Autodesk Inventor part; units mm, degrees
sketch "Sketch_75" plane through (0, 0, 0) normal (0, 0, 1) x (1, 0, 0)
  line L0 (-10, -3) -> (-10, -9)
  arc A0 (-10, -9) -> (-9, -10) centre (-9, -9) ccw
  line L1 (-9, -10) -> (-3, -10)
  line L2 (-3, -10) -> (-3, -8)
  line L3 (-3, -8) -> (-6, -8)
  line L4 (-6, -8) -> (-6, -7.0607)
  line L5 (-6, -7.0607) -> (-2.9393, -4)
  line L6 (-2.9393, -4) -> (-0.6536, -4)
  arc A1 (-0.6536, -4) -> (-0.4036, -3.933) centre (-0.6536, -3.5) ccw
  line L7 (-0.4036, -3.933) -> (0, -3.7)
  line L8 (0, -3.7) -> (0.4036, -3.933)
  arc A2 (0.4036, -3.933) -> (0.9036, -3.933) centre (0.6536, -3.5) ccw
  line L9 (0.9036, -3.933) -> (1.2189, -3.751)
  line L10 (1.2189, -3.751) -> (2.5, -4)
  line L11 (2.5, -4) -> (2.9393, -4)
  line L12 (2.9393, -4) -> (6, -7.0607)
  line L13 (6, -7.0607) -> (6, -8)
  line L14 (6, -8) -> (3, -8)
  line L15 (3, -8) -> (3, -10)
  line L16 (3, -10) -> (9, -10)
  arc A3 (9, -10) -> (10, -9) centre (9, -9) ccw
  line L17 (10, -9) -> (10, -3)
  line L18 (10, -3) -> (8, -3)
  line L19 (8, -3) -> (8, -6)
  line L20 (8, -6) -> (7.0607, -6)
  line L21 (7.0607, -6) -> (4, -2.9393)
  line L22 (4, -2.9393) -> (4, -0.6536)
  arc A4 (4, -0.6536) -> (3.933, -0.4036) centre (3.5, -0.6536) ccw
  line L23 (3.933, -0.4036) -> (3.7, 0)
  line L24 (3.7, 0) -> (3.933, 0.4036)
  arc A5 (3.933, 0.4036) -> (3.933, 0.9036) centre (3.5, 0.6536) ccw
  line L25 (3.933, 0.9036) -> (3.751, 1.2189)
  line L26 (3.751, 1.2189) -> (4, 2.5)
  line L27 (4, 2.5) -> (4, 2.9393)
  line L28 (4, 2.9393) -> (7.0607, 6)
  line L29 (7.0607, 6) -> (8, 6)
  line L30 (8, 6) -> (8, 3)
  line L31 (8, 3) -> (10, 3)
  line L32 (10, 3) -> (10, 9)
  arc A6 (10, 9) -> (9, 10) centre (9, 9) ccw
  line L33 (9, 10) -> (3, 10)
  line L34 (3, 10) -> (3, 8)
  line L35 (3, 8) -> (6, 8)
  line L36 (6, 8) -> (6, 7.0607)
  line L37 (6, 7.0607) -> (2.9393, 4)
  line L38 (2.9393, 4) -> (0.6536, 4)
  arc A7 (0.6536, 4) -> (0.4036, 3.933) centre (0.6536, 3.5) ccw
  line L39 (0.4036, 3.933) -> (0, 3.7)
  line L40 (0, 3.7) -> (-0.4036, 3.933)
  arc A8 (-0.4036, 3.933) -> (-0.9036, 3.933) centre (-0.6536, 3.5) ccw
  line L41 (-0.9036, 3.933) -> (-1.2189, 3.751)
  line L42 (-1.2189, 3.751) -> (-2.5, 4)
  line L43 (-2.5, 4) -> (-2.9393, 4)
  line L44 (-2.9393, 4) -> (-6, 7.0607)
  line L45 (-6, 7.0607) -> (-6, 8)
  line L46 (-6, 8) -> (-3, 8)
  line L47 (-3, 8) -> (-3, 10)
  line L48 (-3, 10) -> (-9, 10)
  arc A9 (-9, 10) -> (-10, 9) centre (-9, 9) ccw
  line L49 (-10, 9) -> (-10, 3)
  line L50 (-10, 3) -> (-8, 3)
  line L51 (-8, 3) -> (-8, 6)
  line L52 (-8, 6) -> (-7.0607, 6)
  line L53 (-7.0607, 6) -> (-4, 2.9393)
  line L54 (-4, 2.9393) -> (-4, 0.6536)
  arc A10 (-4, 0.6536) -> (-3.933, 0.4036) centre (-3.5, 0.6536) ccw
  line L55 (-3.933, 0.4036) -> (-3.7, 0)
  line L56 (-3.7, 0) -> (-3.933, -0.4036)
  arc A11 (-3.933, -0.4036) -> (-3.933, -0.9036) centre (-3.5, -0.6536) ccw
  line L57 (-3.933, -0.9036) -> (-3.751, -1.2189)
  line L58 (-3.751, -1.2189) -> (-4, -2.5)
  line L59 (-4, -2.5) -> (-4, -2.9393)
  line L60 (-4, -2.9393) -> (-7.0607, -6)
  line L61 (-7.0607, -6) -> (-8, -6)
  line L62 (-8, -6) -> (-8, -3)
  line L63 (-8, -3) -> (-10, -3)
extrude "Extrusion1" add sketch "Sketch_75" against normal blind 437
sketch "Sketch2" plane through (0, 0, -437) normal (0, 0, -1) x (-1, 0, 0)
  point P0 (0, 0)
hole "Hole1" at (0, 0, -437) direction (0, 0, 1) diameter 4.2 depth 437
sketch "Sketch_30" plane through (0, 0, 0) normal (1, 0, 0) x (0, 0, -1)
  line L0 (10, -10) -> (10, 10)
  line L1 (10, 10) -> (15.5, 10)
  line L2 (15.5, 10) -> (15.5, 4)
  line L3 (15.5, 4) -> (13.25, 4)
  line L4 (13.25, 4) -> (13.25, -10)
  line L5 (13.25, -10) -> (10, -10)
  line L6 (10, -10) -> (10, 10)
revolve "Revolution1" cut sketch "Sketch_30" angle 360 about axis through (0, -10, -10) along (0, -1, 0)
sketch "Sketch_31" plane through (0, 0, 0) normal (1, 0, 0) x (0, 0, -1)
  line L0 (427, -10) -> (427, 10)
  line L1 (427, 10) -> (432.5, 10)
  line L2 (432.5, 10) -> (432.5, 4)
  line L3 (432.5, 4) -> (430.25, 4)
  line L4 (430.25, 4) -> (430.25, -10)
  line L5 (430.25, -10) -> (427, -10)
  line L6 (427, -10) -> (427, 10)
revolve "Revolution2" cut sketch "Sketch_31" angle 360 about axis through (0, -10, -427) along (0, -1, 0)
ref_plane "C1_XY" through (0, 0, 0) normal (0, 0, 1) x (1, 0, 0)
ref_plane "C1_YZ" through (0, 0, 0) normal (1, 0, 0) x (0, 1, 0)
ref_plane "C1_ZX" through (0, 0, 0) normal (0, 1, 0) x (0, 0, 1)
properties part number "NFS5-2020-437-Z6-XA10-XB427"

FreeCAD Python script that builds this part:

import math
import FreeCAD as App
import Part
import Sketcher
Q = App.Units.Quantity


def add_polygon(sketch, points):
    """Adds a closed chain of lines whose ends are joined by coincident constraints."""
    first, n = sketch.GeometryCount, len(points)
    for a, b in zip(points, points[1:] + points[:1]):
        sketch.addGeometry(Part.LineSegment(App.Vector(*a, 0), App.Vector(*b, 0)), False)
    for i in range(n):
        sketch.addConstraint(Sketcher.Constraint("Coincident", first + i, 2, first + (i + 1) % n, 1))

doc = App.newDocument("Part")
params = doc.addObject("Spreadsheet::Sheet", "Params")
for row, (alias, value) in enumerate([
    ("sketch1_radius", "1 mm"),
    ("sketch1_radius2", "0.5 mm"),
    ("sketch1_width", "2 mm"),
    ("sketch1_width2", "6 mm"),
    ("sketch1_width3", "3 mm"),
    ("pad1_length", "437 mm"),
    ("sketch2_diameter", "4.2 mm"),
    ("hole_diameter", "4.2 mm"),
    ("hole_depth", "437 mm"),
    ("sketch3_width", "20 mm"),
    ("sketch3_width2", "14 mm"),
    ("sketch3_height", "5.5 mm"),
    ("sketch3_height2", "3.25 mm"),
    ("groove_angle", "360 deg"),
    ("sketch4_width", "20 mm"),
    ("sketch4_width2", "14 mm"),
    ("sketch4_height", "5.5 mm"),
    ("sketch4_height2", "3.25 mm"),
    ("groove2_angle", "360 deg"),
], start=1):
    params.set(f"A{row}", alias)
    params.set(f"B{row}", "=" + value)
    params.setAlias(f"B{row}", alias)

body = doc.addObject("PartDesign::Body", "Body")

# Sketch on XY plane
sketch1 = doc.addObject("Sketcher::SketchObject", "Sketch")
body.addObject(sketch1)
sketch1.AttachmentSupport = (doc.XY_Plane, [""])
sketch1.MapMode = "FlatFace"
sketch1.addGeometry([
    Part.LineSegment(App.Vector(-8, -3, 0), App.Vector(-10, -3, 0)),  # 0
    Part.LineSegment(App.Vector(-10, -3, 0), App.Vector(-10, -9, 0)),  # 1
    Part.ArcOfCircle(Part.Circle(App.Vector(-9, -9, 0), App.Vector(0, 0, 1), 1), math.radians(180), math.radians(270)),  # 2
    Part.LineSegment(App.Vector(-9, -10, 0), App.Vector(-3, -10, 0)),  # 3
    Part.LineSegment(App.Vector(-3, -10, 0), App.Vector(-3, -8, 0)),  # 4
    Part.LineSegment(App.Vector(-3, -8, 0), App.Vector(-6, -8, 0)),  # 5
    Part.LineSegment(App.Vector(-6, -8, 0), App.Vector(-6, -7.06, 0)),  # 6
    Part.LineSegment(App.Vector(-6, -7.06, 0), App.Vector(-2.94, -4, 0)),  # 7
    Part.LineSegment(App.Vector(-2.94, -4, 0), App.Vector(-0.65, -4, 0)),  # 8
    Part.ArcOfCircle(Part.Circle(App.Vector(-0.65, -3.5, 0), App.Vector(0, 0, 1), 0.5), math.radians(-90), math.radians(-60)),  # 9
    Part.LineSegment(App.Vector(-0.4, -3.93, 0), App.Vector(0, -3.7, 0)),  # 10
    Part.LineSegment(App.Vector(0, -3.7, 0), App.Vector(0.4, -3.93, 0)),  # 11
    Part.ArcOfCircle(Part.Circle(App.Vector(0.65, -3.5, 0), App.Vector(0, 0, 1), 0.5), math.radians(-120), math.radians(-60)),  # 12
    Part.LineSegment(App.Vector(0.9, -3.93, 0), App.Vector(1.22, -3.75, 0)),  # 13
    Part.LineSegment(App.Vector(1.22, -3.75, 0), App.Vector(2.5, -4, 0)),  # 14
    Part.LineSegment(App.Vector(2.5, -4, 0), App.Vector(2.94, -4, 0)),  # 15
    Part.LineSegment(App.Vector(2.94, -4, 0), App.Vector(6, -7.06, 0)),  # 16
    Part.LineSegment(App.Vector(6, -7.06, 0), App.Vector(6, -8, 0)),  # 17
    Part.LineSegment(App.Vector(6, -8, 0), App.Vector(3, -8, 0)),  # 18
    Part.LineSegment(App.Vector(3, -8, 0), App.Vector(3, -10, 0)),  # 19
    Part.LineSegment(App.Vector(3, -10, 0), App.Vector(9, -10, 0)),  # 20
    Part.ArcOfCircle(Part.Circle(App.Vector(9, -9, 0), App.Vector(0, 0, 1), 1), math.radians(-90), math.radians(0)),  # 21
    Part.LineSegment(App.Vector(10, -9, 0), App.Vector(10, -3, 0)),  # 22
    Part.LineSegment(App.Vector(10, -3, 0), App.Vector(8, -3, 0)),  # 23
    Part.LineSegment(App.Vector(8, -3, 0), App.Vector(8, -6, 0)),  # 24
    Part.LineSegment(App.Vector(8, -6, 0), App.Vector(7.06, -6, 0)),  # 25
    Part.LineSegment(App.Vector(7.06, -6, 0), App.Vector(4, -2.94, 0)),  # 26
    Part.LineSegment(App.Vector(4, -2.94, 0), App.Vector(4, -0.65, 0)),  # 27
    Part.ArcOfCircle(Part.Circle(App.Vector(3.5, -0.65, 0), App.Vector(0, 0, 1), 0.5), math.radians(0), math.radians(30)),  # 28
    Part.LineSegment(App.Vector(3.93, -0.4, 0), App.Vector(3.7, 0, 0)),  # 29
    Part.LineSegment(App.Vector(3.7, 0, 0), App.Vector(3.93, 0.4, 0)),  # 30
    Part.ArcOfCircle(Part.Circle(App.Vector(3.5, 0.65, 0), App.Vector(0, 0, 1), 0.5), math.radians(-30), math.radians(30)),  # 31
    Part.LineSegment(App.Vector(3.93, 0.9, 0), App.Vector(3.75, 1.22, 0)),  # 32
    Part.LineSegment(App.Vector(3.75, 1.22, 0), App.Vector(4, 2.5, 0)),  # 33
    Part.LineSegment(App.Vector(4, 2.5, 0), App.Vector(4, 2.94, 0)),  # 34
    Part.LineSegment(App.Vector(4, 2.94, 0), App.Vector(7.06, 6, 0)),  # 35
    Part.LineSegment(App.Vector(7.06, 6, 0), App.Vector(8, 6, 0)),  # 36
    Part.LineSegment(App.Vector(8, 6, 0), App.Vector(8, 3, 0)),  # 37
    Part.LineSegment(App.Vector(8, 3, 0), App.Vector(10, 3, 0)),  # 38
    Part.LineSegment(App.Vector(10, 3, 0), App.Vector(10, 9, 0)),  # 39
    Part.ArcOfCircle(Part.Circle(App.Vector(9, 9, 0), App.Vector(0, 0, 1), 1), math.radians(0), math.radians(90)),  # 40
    Part.LineSegment(App.Vector(9, 10, 0), App.Vector(3, 10, 0)),  # 41
    Part.LineSegment(App.Vector(3, 10, 0), App.Vector(3, 8, 0)),  # 42
    Part.LineSegment(App.Vector(3, 8, 0), App.Vector(6, 8, 0)),  # 43
    Part.LineSegment(App.Vector(6, 8, 0), App.Vector(6, 7.06, 0)),  # 44
    Part.LineSegment(App.Vector(6, 7.06, 0), App.Vector(2.94, 4, 0)),  # 45
    Part.LineSegment(App.Vector(2.94, 4, 0), App.Vector(0.65, 4, 0)),  # 46
    Part.ArcOfCircle(Part.Circle(App.Vector(0.65, 3.5, 0), App.Vector(0, 0, 1), 0.5), math.radians(90), math.radians(120)),  # 47
    Part.LineSegment(App.Vector(0.4, 3.93, 0), App.Vector(0, 3.7, 0)),  # 48
    Part.LineSegment(App.Vector(0, 3.7, 0), App.Vector(-0.4, 3.93, 0)),  # 49
    Part.ArcOfCircle(Part.Circle(App.Vector(-0.65, 3.5, 0), App.Vector(0, 0, 1), 0.5), math.radians(60), math.radians(120)),  # 50
    Part.LineSegment(App.Vector(-0.9, 3.93, 0), App.Vector(-1.22, 3.75, 0)),  # 51
    Part.LineSegment(App.Vector(-1.22, 3.75, 0), App.Vector(-2.5, 4, 0)),  # 52
    Part.LineSegment(App.Vector(-2.5, 4, 0), App.Vector(-2.94, 4, 0)),  # 53
    Part.LineSegment(App.Vector(-2.94, 4, 0), App.Vector(-6, 7.06, 0)),  # 54
    Part.LineSegment(App.Vector(-6, 7.06, 0), App.Vector(-6, 8, 0)),  # 55
    Part.LineSegment(App.Vector(-6, 8, 0), App.Vector(-3, 8, 0)),  # 56
    Part.LineSegment(App.Vector(-3, 8, 0), App.Vector(-3, 10, 0)),  # 57
    Part.LineSegment(App.Vector(-3, 10, 0), App.Vector(-9, 10, 0)),  # 58
    Part.ArcOfCircle(Part.Circle(App.Vector(-9, 9, 0), App.Vector(0, 0, 1), 1), math.radians(90), math.radians(180)),  # 59
    Part.LineSegment(App.Vector(-10, 9, 0), App.Vector(-10, 3, 0)),  # 60
    Part.LineSegment(App.Vector(-10, 3, 0), App.Vector(-8, 3, 0)),  # 61
    Part.LineSegment(App.Vector(-8, 3, 0), App.Vector(-8, 6, 0)),  # 62
    Part.LineSegment(App.Vector(-8, 6, 0), App.Vector(-7.06, 6, 0)),  # 63
    Part.LineSegment(App.Vector(-7.06, 6, 0), App.Vector(-4, 2.94, 0)),  # 64
    Part.LineSegment(App.Vector(-4, 2.94, 0), App.Vector(-4, 0.65, 0)),  # 65
    Part.ArcOfCircle(Part.Circle(App.Vector(-3.5, 0.65, 0), App.Vector(0, 0, 1), 0.5), math.radians(180), math.radians(210)),  # 66
    Part.LineSegment(App.Vector(-3.93, 0.4, 0), App.Vector(-3.7, 0, 0)),  # 67
    Part.LineSegment(App.Vector(-3.7, 0, 0), App.Vector(-3.93, -0.4, 0)),  # 68
    Part.ArcOfCircle(Part.Circle(App.Vector(-3.5, -0.65, 0), App.Vector(0, 0, 1), 0.5), math.radians(150), math.radians(210)),  # 69
    Part.LineSegment(App.Vector(-3.93, -0.9, 0), App.Vector(-3.75, -1.22, 0)),  # 70
    Part.LineSegment(App.Vector(-3.75, -1.22, 0), App.Vector(-4, -2.5, 0)),  # 71
    Part.LineSegment(App.Vector(-4, -2.5, 0), App.Vector(-4, -2.94, 0)),  # 72
    Part.LineSegment(App.Vector(-4, -2.94, 0), App.Vector(-7.06, -6, 0)),  # 73
    Part.LineSegment(App.Vector(-7.06, -6, 0), App.Vector(-8, -6, 0)),  # 74
    Part.LineSegment(App.Vector(-8, -6, 0), App.Vector(-8, -3, 0)),  # 75
], False)
sketch1.addConstraint([
    Sketcher.Constraint("Coincident", 0, 2, 1, 1),
    Sketcher.Constraint("Tangent", 1, 2, 2, 1),
    Sketcher.Constraint("Tangent", 2, 2, 3, 1),
    Sketcher.Constraint("Coincident", 3, 2, 4, 1),
    Sketcher.Constraint("Coincident", 4, 2, 5, 1),
    Sketcher.Constraint("Coincident", 5, 2, 6, 1),
    Sketcher.Constraint("Coincident", 6, 2, 7, 1),
    Sketcher.Constraint("Coincident", 7, 2, 8, 1),
    Sketcher.Constraint("Tangent", 8, 2, 9, 1),
    Sketcher.Constraint("Tangent", 9, 2, 10, 1),
    Sketcher.Constraint("Coincident", 10, 2, 11, 1),
    Sketcher.Constraint("Tangent", 11, 2, 12, 1),
    Sketcher.Constraint("Tangent", 12, 2, 13, 1),
    Sketcher.Constraint("Coincident", 13, 2, 14, 1),
    Sketcher.Constraint("Coincident", 14, 2, 15, 1),
    Sketcher.Constraint("Coincident", 15, 2, 16, 1),
    Sketcher.Constraint("Coincident", 16, 2, 17, 1),
    Sketcher.Constraint("Coincident", 17, 2, 18, 1),
    Sketcher.Constraint("Coincident", 18, 2, 19, 1),
    Sketcher.Constraint("Coincident", 19, 2, 20, 1),
    Sketcher.Constraint("Tangent", 20, 2, 21, 1),
    Sketcher.Constraint("Tangent", 21, 2, 22, 1),
    Sketcher.Constraint("Coincident", 22, 2, 23, 1),
    Sketcher.Constraint("Coincident", 23, 2, 24, 1),
    Sketcher.Constraint("Coincident", 24, 2, 25, 1),
    Sketcher.Constraint("Coincident", 25, 2, 26, 1),
    Sketcher.Constraint("Coincident", 26, 2, 27, 1),
    Sketcher.Constraint("Tangent", 27, 2, 28, 1),
    Sketcher.Constraint("Tangent", 28, 2, 29, 1),
    Sketcher.Constraint("Coincident", 29, 2, 30, 1),
    Sketcher.Constraint("Tangent", 30, 2, 31, 1),
    Sketcher.Constraint("Tangent", 31, 2, 32, 1),
    Sketcher.Constraint("Coincident", 32, 2, 33, 1),
    Sketcher.Constraint("Coincident", 33, 2, 34, 1),
    Sketcher.Constraint("Coincident", 34, 2, 35, 1),
    Sketcher.Constraint("Coincident", 35, 2, 36, 1),
    Sketcher.Constraint("Coincident", 36, 2, 37, 1),
    Sketcher.Constraint("Coincident", 37, 2, 38, 1),
    Sketcher.Constraint("Coincident", 38, 2, 39, 1),
    Sketcher.Constraint("Tangent", 39, 2, 40, 1),
    Sketcher.Constraint("Tangent", 40, 2, 41, 1),
    Sketcher.Constraint("Coincident", 41, 2, 42, 1),
    Sketcher.Constraint("Coincident", 42, 2, 43, 1),
    Sketcher.Constraint("Coincident", 43, 2, 44, 1),
    Sketcher.Constraint("Coincident", 44, 2, 45, 1),
    Sketcher.Constraint("Coincident", 45, 2, 46, 1),
    Sketcher.Constraint("Tangent", 46, 2, 47, 1),
    Sketcher.Constraint("Tangent", 47, 2, 48, 1),
    Sketcher.Constraint("Coincident", 48, 2, 49, 1),
    Sketcher.Constraint("Tangent", 49, 2, 50, 1),
    Sketcher.Constraint("Tangent", 50, 2, 51, 1),
    Sketcher.Constraint("Coincident", 51, 2, 52, 1),
    Sketcher.Constraint("Coincident", 52, 2, 53, 1),
    Sketcher.Constraint("Coincident", 53, 2, 54, 1),
    Sketcher.Constraint("Coincident", 54, 2, 55, 1),
    Sketcher.Constraint("Coincident", 55, 2, 56, 1),
    Sketcher.Constraint("Coincident", 56, 2, 57, 1),
    Sketcher.Constraint("Coincident", 57, 2, 58, 1),
    Sketcher.Constraint("Tangent", 58, 2, 59, 1),
    Sketcher.Constraint("Tangent", 59, 2, 60, 1),
    Sketcher.Constraint("Coincident", 60, 2, 61, 1),
    Sketcher.Constraint("Coincident", 61, 2, 62, 1),
    Sketcher.Constraint("Coincident", 62, 2, 63, 1),
    Sketcher.Constraint("Coincident", 63, 2, 64, 1),
    Sketcher.Constraint("Coincident", 64, 2, 65, 1),
    Sketcher.Constraint("Tangent", 65, 2, 66, 1),
    Sketcher.Constraint("Tangent", 66, 2, 67, 1),
    Sketcher.Constraint("Coincident", 67, 2, 68, 1),
    Sketcher.Constraint("Tangent", 68, 2, 69, 1),
    Sketcher.Constraint("Tangent", 69, 2, 70, 1),
    Sketcher.Constraint("Coincident", 70, 2, 71, 1),
    Sketcher.Constraint("Coincident", 71, 2, 72, 1),
    Sketcher.Constraint("Coincident", 72, 2, 73, 1),
    Sketcher.Constraint("Coincident", 73, 2, 74, 1),
    Sketcher.Constraint("Coincident", 74, 2, 75, 1),
    Sketcher.Constraint("Coincident", 75, 2, 0, 1),
    Sketcher.Constraint("Horizontal", 0),
    Sketcher.Constraint("Vertical", 1),
    Sketcher.Constraint("Horizontal", 3),
    Sketcher.Constraint("Vertical", 4),
    Sketcher.Constraint("Horizontal", 5),
    Sketcher.Constraint("Vertical", 6),
    Sketcher.Constraint("Horizontal", 8),
    Sketcher.Constraint("Horizontal", 15),
    Sketcher.Constraint("Vertical", 17),
    Sketcher.Constraint("Horizontal", 18),
    Sketcher.Constraint("Vertical", 19),
    Sketcher.Constraint("Horizontal", 20),
    Sketcher.Constraint("Vertical", 22),
    Sketcher.Constraint("Horizontal", 23),
    Sketcher.Constraint("Vertical", 24),
    Sketcher.Constraint("Horizontal", 25),
    Sketcher.Constraint("Vertical", 27),
    Sketcher.Constraint("Vertical", 34),
    Sketcher.Constraint("Horizontal", 36),
    Sketcher.Constraint("Vertical", 37),
    Sketcher.Constraint("Horizontal", 38),
    Sketcher.Constraint("Vertical", 39),
    Sketcher.Constraint("Horizontal", 41),
    Sketcher.Constraint("Vertical", 42),
    Sketcher.Constraint("Horizontal", 43),
    Sketcher.Constraint("Vertical", 44),
    Sketcher.Constraint("Horizontal", 46),
    Sketcher.Constraint("Horizontal", 53),
    Sketcher.Constraint("Vertical", 55),
    Sketcher.Constraint("Horizontal", 56),
    Sketcher.Constraint("Vertical", 57),
    Sketcher.Constraint("Horizontal", 58),
    Sketcher.Constraint("Vertical", 60),
    Sketcher.Constraint("Horizontal", 61),
    Sketcher.Constraint("Vertical", 62),
    Sketcher.Constraint("Horizontal", 63),
    Sketcher.Constraint("Vertical", 65),
    Sketcher.Constraint("Vertical", 72),
    Sketcher.Constraint("Horizontal", 74),
    Sketcher.Constraint("Vertical", 75),
    Sketcher.Constraint("Equal", 9, 12),
    Sketcher.Constraint("Equal", 2, 21),
    Sketcher.Constraint("Equal", 12, 28),
    Sketcher.Constraint("Equal", 28, 31),
    Sketcher.Constraint("Equal", 21, 40),
    Sketcher.Constraint("Equal", 31, 47),
    Sketcher.Constraint("Equal", 47, 50),
    Sketcher.Constraint("Equal", 40, 59),
    Sketcher.Constraint("Equal", 50, 66),
    Sketcher.Constraint("Equal", 66, 69),
    Sketcher.Constraint("Symmetric", 2, 3, 40, 3, -1, 1),
    Sketcher.Constraint("Symmetric", 9, 3, 47, 3, -1, 1),
    Sketcher.Constraint("Symmetric", 12, 3, 50, 3, -1, 1),
    Sketcher.Constraint("Symmetric", 21, 3, 59, 3, -1, 1),
    Sketcher.Constraint("Symmetric", 28, 3, 66, 3, -1, 1),
    Sketcher.Constraint("Symmetric", 31, 3, 69, 3, -1, 1),
    Sketcher.Constraint("Symmetric", 4, 2, 42, 2, -1, 1),
    Sketcher.Constraint("Symmetric", 6, 2, 44, 2, -1, 1),
    Sketcher.Constraint("Symmetric", 10, 2, 48, 2, -1, 1),
    Sketcher.Constraint("Symmetric", 13, 2, 51, 2, -1, 1),
    Sketcher.Constraint("Symmetric", 14, 2, 52, 2, -1, 1),
    Sketcher.Constraint("Symmetric", 16, 2, 54, 2, -1, 1),
    Sketcher.Constraint("Symmetric", 18, 2, 56, 2, -1, 1),
    Sketcher.Constraint("Symmetric", 23, 2, 61, 2, -1, 1),
    Sketcher.Constraint("Symmetric", 25, 2, 63, 2, -1, 1),
    Sketcher.Constraint("Symmetric", 29, 2, 67, 2, -1, 1),
    Sketcher.Constraint("Symmetric", 32, 2, 70, 2, -1, 1),
    Sketcher.Constraint("Symmetric", 33, 2, 71, 2, -1, 1),
    Sketcher.Constraint("Symmetric", 35, 2, 73, 2, -1, 1),
    Sketcher.Constraint("Symmetric", 37, 2, 75, 2, -1, 1),
    Sketcher.Constraint("Symmetric", 9, 3, 12, 3, -2),
    Sketcher.Constraint("Symmetric", 2, 3, 21, 3, -2),
    Sketcher.Constraint("Symmetric", 31, 3, 66, 3, -2),
    Sketcher.Constraint("Symmetric", 7, 2, 15, 2, -2),
    Sketcher.Constraint("Symmetric", 6, 2, 16, 2, -2),
    Sketcher.Constraint("Symmetric", 4, 2, 18, 2, -2),
    Sketcher.Constraint("Symmetric", 37, 2, 61, 2, -2),
    Sketcher.Constraint("Symmetric", 35, 2, 63, 2, -2),
    Sketcher.Constraint("Symmetric", 34, 2, 64, 2, -2),
    Sketcher.Constraint("PointOnObject", 10, 2, -2),
    Sketcher.Constraint("PointOnObject", 29, 2, -1),
    Sketcher.Constraint("Parallel", 10, 13),
    Sketcher.Constraint("Perpendicular", 7, 16),
    Sketcher.Constraint("Parallel", 16, 26),
    Sketcher.Constraint("Perpendicular", 13, 29),
    Sketcher.Constraint("Parallel", 29, 32),
    Sketcher.Constraint("Perpendicular", 14, 33),
    Sketcher.Constraint("Perpendicular", 26, 35),
    Sketcher.Constraint("Parallel", 35, 45),
    Sketcher.Constraint("Perpendicular", 45, 54),
    Sketcher.Constraint("Perpendicular", 64, 73),
    Sketcher.Constraint("Equal", 58, 1),
    Sketcher.Constraint("Equal", 61, 4),
    Sketcher.Constraint("Equal", 74, 6),
    Sketcher.Constraint("Equal", 56, 24),
    Sketcher.Constraint("Equal", 46, 27),
    Sketcher.Constraint("Equal", 53, 34),
    Sketcher.Constraint("Equal", 16, 26),
    Sketcher.Constraint("Equal", 11, 29),
    Sketcher.Constraint("Radius", 2, 1.0),
    Sketcher.Constraint("Radius", 9, 0.5),
    Sketcher.Constraint("DistanceX", 0, 2, 0, 1, 2.0),
    Sketcher.Constraint("DistanceX", 3, 1, 3, 2, 6.0),
    Sketcher.Constraint("DistanceX", 5, 2, 5, 1, 3.0),
    Sketcher.Constraint("Angle", 14, Q("-10.999 deg")),
    Sketcher.Constraint("DistanceX", 2, 3, -1, 1, 9.0),
    Sketcher.Constraint("DistanceY", 7, 2, -1, 1, 4.0),
    Sketcher.Constraint("DistanceY", 10, 2, -1, 1, 3.7),
    Sketcher.Constraint("DistanceX", -1, 1, 14, 2, 2.5),
    Sketcher.Constraint("Distance", 10, 0.466),
    Sketcher.Constraint("DistanceX", 8, 1, 8, 2, 2.2857),
])
sketch1.setExpression("Constraints[175]", "Params.sketch1_radius")
sketch1.setExpression("Constraints[176]", "Params.sketch1_radius2")
sketch1.setExpression("Constraints[177]", "Params.sketch1_width")
sketch1.setExpression("Constraints[178]", "Params.sketch1_width2")
sketch1.setExpression("Constraints[179]", "Params.sketch1_width3")
pad1 = doc.addObject("PartDesign::Pad", "Pad")
body.addObject(pad1)
pad1.Profile = sketch1
pad1.setExpression("Length", "Params.pad1_length")
pad1.Reversed = True

# Sketch on XY plane
sketch2 = doc.addObject("Sketcher::SketchObject", "Sketch001")
body.addObject(sketch2)
sketch2.AttachmentSupport = (doc.XY_Plane, [""])
sketch2.MapMode = "FlatFace"
sketch2.AttachmentOffset = App.Placement(App.Vector(0, 0, -437), App.Rotation())
sketch2.addGeometry(Part.Circle(App.Vector(0, 0, 0), App.Vector(0, 0, 1), 2.1), False)
sketch2.addConstraint([
    Sketcher.Constraint("Coincident", 0, 3, -1, 1),
    Sketcher.Constraint("Diameter", 0, 4.2),
])
sketch2.setExpression("Constraints[1]", "Params.sketch2_diameter")
doc.recompute()
hole = doc.addObject("PartDesign::Hole", "Hole")
body.addObject(hole)
hole.Profile = sketch2
hole.ThreadType = "None"
hole.setExpression("Diameter", "Params.hole_diameter")
hole.DepthType = "Dimension"
hole.setExpression("Depth", "Params.hole_depth")
hole.DrillPoint = "Flat"
hole.Reversed = True

# Sketch on YZ plane
sketch3 = doc.addObject("Sketcher::SketchObject", "Sketch002")
body.addObject(sketch3)
sketch3.AttachmentSupport = (doc.YZ_Plane, [""])
sketch3.MapMode = "FlatFace"
add_polygon(sketch3, [(10, -10), (-10, -10), (-10, -13.2), (4, -13.2), (4, -15.5), (10, -15.5)])  # lines 0-5
sketch3.addGeometry(Part.LineSegment(App.Vector(10, -10, 0), App.Vector(-10, -10, 0)), True)  # axis
sketch3.addConstraint([
    Sketcher.Constraint("Horizontal", 0),
    Sketcher.Constraint("Vertical", 1),
    Sketcher.Constraint("Horizontal", 2),
    Sketcher.Constraint("Vertical", 3),
    Sketcher.Constraint("Horizontal", 4),
    Sketcher.Constraint("Vertical", 5),
    Sketcher.Constraint("Horizontal", 6),
    Sketcher.Constraint("Coincident", 6, 1, 5, 2),
    Sketcher.Constraint("Vertical", 1, 2, 6, 2),
    Sketcher.Constraint("DistanceX", 0, 2, 0, 1, 20.0),
    Sketcher.Constraint("DistanceX", 2, 1, 2, 2, 14.0),
    Sketcher.Constraint("DistanceY", 5, 1, 5, 2, 5.5),
    Sketcher.Constraint("DistanceX", 0, 2, -1, 1, 10.0),
    Sketcher.Constraint("DistanceY", 0, 2, -1, 1, 10.0),
    Sketcher.Constraint("DistanceY", 1, 2, 1, 1, 3.25),
])
sketch3.setExpression("Constraints[15]", "Params.sketch3_width")
sketch3.setExpression("Constraints[16]", "Params.sketch3_width2")
sketch3.setExpression("Constraints[17]", "Params.sketch3_height")
sketch3.setExpression("Constraints[20]", "Params.sketch3_height2")
groove = doc.addObject("PartDesign::Groove", "Groove")
body.addObject(groove)
groove.Profile = sketch3
groove.ReferenceAxis = (sketch3, ["Axis0"])
groove.setExpression("Angle", "Params.groove_angle")

# Sketch on YZ plane
sketch4 = doc.addObject("Sketcher::SketchObject", "Sketch003")
body.addObject(sketch4)
sketch4.AttachmentSupport = (doc.YZ_Plane, [""])
sketch4.MapMode = "FlatFace"
add_polygon(sketch4, [(10, -427), (-10, -427), (-10, -430.2), (4, -430.2), (4, -432.5), (10, -432.5)])  # lines 0-5
sketch4.addGeometry(Part.LineSegment(App.Vector(10, -427, 0), App.Vector(-10, -427, 0)), True)  # axis
sketch4.addConstraint([
    Sketcher.Constraint("Horizontal", 0),
    Sketcher.Constraint("Vertical", 1),
    Sketcher.Constraint("Horizontal", 2),
    Sketcher.Constraint("Vertical", 3),
    Sketcher.Constraint("Horizontal", 4),
    Sketcher.Constraint("Vertical", 5),
    Sketcher.Constraint("Horizontal", 6),
    Sketcher.Constraint("Coincident", 6, 1, 5, 2),
    Sketcher.Constraint("Vertical", 1, 2, 6, 2),
    Sketcher.Constraint("DistanceX", 0, 2, 0, 1, 20.0),
    Sketcher.Constraint("DistanceX", 2, 1, 2, 2, 14.0),
    Sketcher.Constraint("DistanceY", 5, 1, 5, 2, 5.5),
    Sketcher.Constraint("DistanceX", 0, 2, -1, 1, 10.0),
    Sketcher.Constraint("DistanceY", 0, 2, -1, 1, 427.0),
    Sketcher.Constraint("DistanceY", 1, 2, 1, 1, 3.25),
])
sketch4.setExpression("Constraints[15]", "Params.sketch4_width")
sketch4.setExpression("Constraints[16]", "Params.sketch4_width2")
sketch4.setExpression("Constraints[17]", "Params.sketch4_height")
sketch4.setExpression("Constraints[20]", "Params.sketch4_height2")
groove2 = doc.addObject("PartDesign::Groove", "Groove001")
body.addObject(groove2)
groove2.Profile = sketch4
groove2.ReferenceAxis = (sketch4, ["Axis0"])
groove2.setExpression("Angle", "Params.groove2_angle")

doc.recompute()
